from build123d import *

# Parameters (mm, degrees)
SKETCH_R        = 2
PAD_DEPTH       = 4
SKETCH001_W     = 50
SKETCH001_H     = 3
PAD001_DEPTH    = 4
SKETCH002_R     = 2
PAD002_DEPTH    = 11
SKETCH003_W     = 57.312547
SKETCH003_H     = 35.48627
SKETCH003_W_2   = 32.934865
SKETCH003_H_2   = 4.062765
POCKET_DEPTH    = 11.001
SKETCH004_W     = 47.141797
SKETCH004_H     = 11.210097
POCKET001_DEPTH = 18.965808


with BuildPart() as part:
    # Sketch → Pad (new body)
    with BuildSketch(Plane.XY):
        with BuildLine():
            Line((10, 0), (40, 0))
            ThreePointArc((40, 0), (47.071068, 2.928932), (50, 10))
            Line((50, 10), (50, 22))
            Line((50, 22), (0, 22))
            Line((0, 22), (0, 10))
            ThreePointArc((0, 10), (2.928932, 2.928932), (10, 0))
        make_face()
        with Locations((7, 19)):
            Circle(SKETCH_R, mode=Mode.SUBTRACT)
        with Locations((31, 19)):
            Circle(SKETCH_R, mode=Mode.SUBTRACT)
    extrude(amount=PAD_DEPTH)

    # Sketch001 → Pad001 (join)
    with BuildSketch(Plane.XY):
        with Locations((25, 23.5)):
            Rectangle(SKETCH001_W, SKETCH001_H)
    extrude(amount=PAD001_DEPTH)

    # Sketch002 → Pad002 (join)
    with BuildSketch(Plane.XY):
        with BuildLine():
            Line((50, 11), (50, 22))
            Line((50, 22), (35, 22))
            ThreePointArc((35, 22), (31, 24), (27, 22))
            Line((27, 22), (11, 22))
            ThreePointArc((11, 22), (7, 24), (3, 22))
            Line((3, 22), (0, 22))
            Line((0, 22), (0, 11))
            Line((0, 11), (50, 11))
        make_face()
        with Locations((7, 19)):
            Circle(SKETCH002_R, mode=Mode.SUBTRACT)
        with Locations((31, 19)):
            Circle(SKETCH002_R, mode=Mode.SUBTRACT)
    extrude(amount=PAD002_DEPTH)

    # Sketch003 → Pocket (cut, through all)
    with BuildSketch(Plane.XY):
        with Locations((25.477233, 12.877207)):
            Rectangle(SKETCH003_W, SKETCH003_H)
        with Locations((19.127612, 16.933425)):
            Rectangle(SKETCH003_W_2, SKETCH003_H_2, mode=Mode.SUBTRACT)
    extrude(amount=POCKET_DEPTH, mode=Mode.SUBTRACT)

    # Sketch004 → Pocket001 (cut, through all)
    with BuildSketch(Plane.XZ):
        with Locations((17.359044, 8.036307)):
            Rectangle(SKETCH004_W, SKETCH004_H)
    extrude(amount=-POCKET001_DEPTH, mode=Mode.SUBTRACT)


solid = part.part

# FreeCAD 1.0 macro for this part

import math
import FreeCAD as App
import Part
import Sketcher

V = App.Vector


def add_polygon(sketch, points):
    """Adds a closed chain of lines whose ends are joined by coincident constraints."""
    first, n = sketch.GeometryCount, len(points)
    for a, b in zip(points, points[1:] + points[:1]):
        sketch.addGeometry(Part.LineSegment(App.Vector(*a, 0), App.Vector(*b, 0)), False)
    for i in range(n):
        sketch.addConstraint(Sketcher.Constraint("Coincident", first + i, 2, first + (i + 1) % n, 1))

doc = App.newDocument("Part")
body = doc.addObject("PartDesign::Body", "Body")

# Sketch on XY plane
sketch1 = body.newObject("Sketcher::SketchObject", "Sketch")
sketch1.AttachmentSupport = (doc.getObject("XY_Plane"), [""])
sketch1.MapMode = "FlatFace"
sketch1.addGeometry(Part.LineSegment(V(10, 0, 0), V(40, 0, 0)), False)
sketch1.addGeometry(Part.ArcOfCircle(Part.Circle(V(40, 10, 0), V(0, 0, 1), 10), math.radians(-90), math.radians(0)), False)
sketch1.addGeometry(Part.LineSegment(V(50, 10, 0), V(50, 22, 0)), False)
sketch1.addGeometry(Part.LineSegment(V(50, 22, 0), V(0, 22, 0)), False)
sketch1.addGeometry(Part.LineSegment(V(0, 22, 0), V(0, 10, 0)), False)
sketch1.addGeometry(Part.ArcOfCircle(Part.Circle(V(10, 10, 0), V(0, 0, 1), 10), math.radians(180), math.radians(270)), False)
sketch1.addGeometry(Part.Circle(V(7, 19, 0), V(0, 0, 1), 2), False)
sketch1.addGeometry(Part.Circle(V(31, 19, 0), V(0, 0, 1), 2), False)
sketch1.addConstraint(Sketcher.Constraint("Tangent", 0, 2, 1, 1))
sketch1.addConstraint(Sketcher.Constraint("Tangent", 1, 2, 2, 1))
sketch1.addConstraint(Sketcher.Constraint("Coincident", 2, 2, 3, 1))
sketch1.addConstraint(Sketcher.Constraint("Coincident", 3, 2, 4, 1))
sketch1.addConstraint(Sketcher.Constraint("Tangent", 4, 2, 5, 1))
sketch1.addConstraint(Sketcher.Constraint("Tangent", 5, 2, 0, 1))
sketch1.addConstraint(Sketcher.Constraint("Horizontal", 0))
sketch1.addConstraint(Sketcher.Constraint("Vertical", 2))
sketch1.addConstraint(Sketcher.Constraint("Horizontal", 3))
sketch1.addConstraint(Sketcher.Constraint("Vertical", 4))
sketch1.addConstraint(Sketcher.Constraint("Equal", 1, 5))
sketch1.addConstraint(Sketcher.Constraint("Equal", 6, 7))
sketch1.addConstraint(Sketcher.Constraint("PointOnObject", 0, 2, -1))
sketch1.addConstraint(Sketcher.Constraint("PointOnObject", 3, 2, -2))
sketch1.addConstraint(Sketcher.Constraint("Horizontal", 6, 3, 7, 3))
sketch1.addConstraint(Sketcher.Constraint("Diameter", 6, 4.0))
sketch1.addConstraint(Sketcher.Constraint("Radius", 1, 9.999999))
sketch1.addConstraint(Sketcher.Constraint("DistanceX", 0, 1, 0, 2, 30.0))
sketch1.addConstraint(Sketcher.Constraint("DistanceY", 2, 1, 2, 2, 12.0))
sketch1.addConstraint(Sketcher.Constraint("DistanceX", -1, 1, 6, 3, 7.0))
sketch1.addConstraint(Sketcher.Constraint("DistanceY", -1, 1, 6, 3, 19.0))
sketch1.addConstraint(Sketcher.Constraint("DistanceX", -1, 1, 7, 3, 31.0))
pad1 = body.newObject("PartDesign::Pad", "Pad")
pad1.Profile = sketch1
pad1.Length = 4

# Sketch on XY plane
sketch2 = body.newObject("Sketcher::SketchObject", "Sketch001")
sketch2.AttachmentSupport = (doc.getObject("XY_Plane"), [""])
sketch2.MapMode = "FlatFace"
add_polygon(sketch2, [(0, 25), (0, 22), (50, 22), (50, 25)])  # lines 0-3
sketch2.addConstraint(Sketcher.Constraint("Vertical", 0))
sketch2.addConstraint(Sketcher.Constraint("Horizontal", 1))
sketch2.addConstraint(Sketcher.Constraint("Vertical", 2))
sketch2.addConstraint(Sketcher.Constraint("Horizontal", 3))
sketch2.addConstraint(Sketcher.Constraint("PointOnObject", 0, 2, -2))
sketch2.addConstraint(Sketcher.Constraint("DistanceX", 1, 1, 1, 2, 50.0))
sketch2.addConstraint(Sketcher.Constraint("DistanceY", 0, 2, 0, 1, 3.0))
sketch2.addConstraint(Sketcher.Constraint("DistanceY", -1, 1, 0, 2, 22.0))
pad2 = body.newObject("PartDesign::Pad", "Pad001")
pad2.Profile = sketch2
pad2.Length = 4

# Sketch on XY plane
sketch3 = body.newObject("Sketcher::SketchObject", "Sketch002")
sketch3.AttachmentSupport = (doc.getObject("XY_Plane"), [""])
sketch3.MapMode = "FlatFace"
sketch3.addGeometry(Part.LineSegment(V(50, 11, 0), V(50, 22, 0)), False)
sketch3.addGeometry(Part.LineSegment(V(50, 22, 0), V(35, 22, 0)), False)
sketch3.addGeometry(Part.ArcOfCircle(Part.Circle(V(31, 19, 0), V(0, 0, 1), 5), math.radians(37), math.radians(143)), False)
sketch3.addGeometry(Part.LineSegment(V(27, 22, 0), V(11, 22, 0)), False)
sketch3.addGeometry(Part.ArcOfCircle(Part.Circle(V(7, 19, 0), V(0, 0, 1), 5), math.radians(37), math.radians(143)), False)
sketch3.addGeometry(Part.LineSegment(V(3, 22, 0), V(0, 22, 0)), False)
sketch3.addGeometry(Part.LineSegment(V(0, 22, 0), V(0, 11, 0)), False)
sketch3.addGeometry(Part.LineSegment(V(0, 11, 0), V(50, 11, 0)), False)
sketch3.addGeometry(Part.Circle(V(7, 19, 0), V(0, 0, 1), 2), False)
sketch3.addGeometry(Part.Circle(V(31, 19, 0), V(0, 0, 1), 2), False)
sketch3.addConstraint(Sketcher.Constraint("Coincident", 0, 2, 1, 1))
sketch3.addConstraint(Sketcher.Constraint("Coincident", 1, 2, 2, 1))
sketch3.addConstraint(Sketcher.Constraint("Coincident", 2, 2, 3, 1))
sketch3.addConstraint(Sketcher.Constraint("Coincident", 3, 2, 4, 1))
sketch3.addConstraint(Sketcher.Constraint("Coincident", 4, 2, 5, 1))
sketch3.addConstraint(Sketcher.Constraint("Coincident", 5, 2, 6, 1))
sketch3.addConstraint(Sketcher.Constraint("Coincident", 6, 2, 7, 1))
sketch3.addConstraint(Sketcher.Constraint("Coincident", 7, 2, 0, 1))
sketch3.addConstraint(Sketcher.Constraint("Vertical", 0))
sketch3.addConstraint(Sketcher.Constraint("Horizontal", 1))
sketch3.addConstraint(Sketcher.Constraint("Horizontal", 3))
sketch3.addConstraint(Sketcher.Constraint("Horizontal", 5))
sketch3.addConstraint(Sketcher.Constraint("Vertical", 6))
sketch3.addConstraint(Sketcher.Constraint("Horizontal", 7))
sketch3.addConstraint(Sketcher.Constraint("Coincident", 8, 3, 4, 3))
sketch3.addConstraint(Sketcher.Constraint("Coincident", 9, 3, 2, 3))
sketch3.addConstraint(Sketcher.Constraint("Equal", 2, 4))
sketch3.addConstraint(Sketcher.Constraint("Equal", 8, 9))
sketch3.addConstraint(Sketcher.Constraint("PointOnObject", 5, 2, -2))
sketch3.addConstraint(Sketcher.Constraint("Horizontal", 2, 3, 4, 3))
sketch3.addConstraint(Sketcher.Constraint("Horizontal", 1, 2, 2, 2))
sketch3.addConstraint(Sketcher.Constraint("Horizontal", 3, 2, 4, 2))
sketch3.addConstraint(Sketcher.Constraint("Diameter", 8, 4.0))
sketch3.addConstraint(Sketcher.Constraint("Radius", 2, 5.0))
sketch3.addConstraint(Sketcher.Constraint("DistanceX", 1, 2, 1, 1, 15.0))
sketch3.addConstraint(Sketcher.Constraint("DistanceX", 3, 2, 3, 1, 16.0))
sketch3.addConstraint(Sketcher.Constraint("DistanceX", 5, 2, 5, 1, 3.0))
sketch3.addConstraint(Sketcher.Constraint("DistanceX", 7, 1, 7, 2, 50.0))
sketch3.addConstraint(Sketcher.Constraint("DistanceY", 0, 1, 0, 2, 11.0))
sketch3.addConstraint(Sketcher.Constraint("DistanceY", -1, 1, 2, 3, 19.0))
pad3 = body.newObject("PartDesign::Pad", "Pad002")
pad3.Profile = sketch3
pad3.Length = 11

# Sketch on XY plane
sketch4 = body.newObject("Sketcher::SketchObject", "Sketch003")
sketch4.AttachmentSupport = (doc.getObject("XY_Plane"), [""])
sketch4.MapMode = "FlatFace"
add_polygon(sketch4, [(-3.2, 30.6), (-3.2, -4.9), (54.1, -4.9), (54.1, 30.6)])  # lines 0-3
add_polygon(sketch4, [(35.6, 14.9), (2.7, 14.9), (2.7, 19), (35.6, 19)])  # lines 4-7
sketch4.addConstraint(Sketcher.Constraint("Vertical", 0))
sketch4.addConstraint(Sketcher.Constraint("Horizontal", 1))
sketch4.addConstraint(Sketcher.Constraint("Vertical", 2))
sketch4.addConstraint(Sketcher.Constraint("Horizontal", 3))
sketch4.addConstraint(Sketcher.Constraint("Horizontal", 4))
sketch4.addConstraint(Sketcher.Constraint("Vertical", 5))
sketch4.addConstraint(Sketcher.Constraint("Horizontal", 6))
sketch4.addConstraint(Sketcher.Constraint("Vertical", 7))
sketch4.addConstraint(Sketcher.Constraint("DistanceY", 0, 2, 0, 1, 35.48627))
sketch4.addConstraint(Sketcher.Constraint("DistanceY", 4, 2, 3, 2, 15.7183))
sketch4.addConstraint(Sketcher.Constraint("DistanceX", 1, 1, 1, 2, 57.312547))
sketch4.addConstraint(Sketcher.Constraint("DistanceX", 4, 2, 4, 1, 32.934865))
sketch4.addConstraint(Sketcher.Constraint("DistanceY", 5, 1, 5, 2, 4.062765))
sketch4.addConstraint(Sketcher.Constraint("DistanceX", 0, 2, -1, 1, 3.179041))
sketch4.addConstraint(Sketcher.Constraint("DistanceY", 0, 2, -1, 1, 4.865928))
sketch4.addConstraint(Sketcher.Constraint("DistanceX", -1, 1, 4, 2, 2.660179))
pocket1 = body.newObject("PartDesign::Pocket", "Pocket")
pocket1.Profile = sketch4
pocket1.Type = "ThroughAll"
pocket1.Reversed = True

# Sketch on XZ plane
sketch5 = body.newObject("Sketcher::SketchObject", "Sketch004")
sketch5.AttachmentSupport = (doc.getObject("XZ_Plane"), [""])
sketch5.MapMode = "FlatFace"
add_polygon(sketch5, [(-6, 14), (-6, 2), (41, 2), (41, 14)])  # lines 0-3
sketch5.addConstraint(Sketcher.Constraint("Vertical", 0))
sketch5.addConstraint(Sketcher.Constraint("Horizontal", 1))
sketch5.addConstraint(Sketcher.Constraint("Vertical", 2))
sketch5.addConstraint(Sketcher.Constraint("Horizontal", 3))
sketch5.addConstraint(Sketcher.Constraint("DistanceX", 1, 1, 1, 2, 47.141797))
sketch5.addConstraint(Sketcher.Constraint("DistanceY", 0, 2, 0, 1, 11.210097))
sketch5.addConstraint(Sketcher.Constraint("DistanceY", -1, 1, 0, 2, 2.431259))
sketch5.addConstraint(Sketcher.Constraint("DistanceX", 0, 2, -1, 1, 6.211855))
pocket2 = body.newObject("PartDesign::Pocket", "Pocket001")
pocket2.Profile = sketch5
pocket2.Type = "ThroughAll"

doc.recompute()
